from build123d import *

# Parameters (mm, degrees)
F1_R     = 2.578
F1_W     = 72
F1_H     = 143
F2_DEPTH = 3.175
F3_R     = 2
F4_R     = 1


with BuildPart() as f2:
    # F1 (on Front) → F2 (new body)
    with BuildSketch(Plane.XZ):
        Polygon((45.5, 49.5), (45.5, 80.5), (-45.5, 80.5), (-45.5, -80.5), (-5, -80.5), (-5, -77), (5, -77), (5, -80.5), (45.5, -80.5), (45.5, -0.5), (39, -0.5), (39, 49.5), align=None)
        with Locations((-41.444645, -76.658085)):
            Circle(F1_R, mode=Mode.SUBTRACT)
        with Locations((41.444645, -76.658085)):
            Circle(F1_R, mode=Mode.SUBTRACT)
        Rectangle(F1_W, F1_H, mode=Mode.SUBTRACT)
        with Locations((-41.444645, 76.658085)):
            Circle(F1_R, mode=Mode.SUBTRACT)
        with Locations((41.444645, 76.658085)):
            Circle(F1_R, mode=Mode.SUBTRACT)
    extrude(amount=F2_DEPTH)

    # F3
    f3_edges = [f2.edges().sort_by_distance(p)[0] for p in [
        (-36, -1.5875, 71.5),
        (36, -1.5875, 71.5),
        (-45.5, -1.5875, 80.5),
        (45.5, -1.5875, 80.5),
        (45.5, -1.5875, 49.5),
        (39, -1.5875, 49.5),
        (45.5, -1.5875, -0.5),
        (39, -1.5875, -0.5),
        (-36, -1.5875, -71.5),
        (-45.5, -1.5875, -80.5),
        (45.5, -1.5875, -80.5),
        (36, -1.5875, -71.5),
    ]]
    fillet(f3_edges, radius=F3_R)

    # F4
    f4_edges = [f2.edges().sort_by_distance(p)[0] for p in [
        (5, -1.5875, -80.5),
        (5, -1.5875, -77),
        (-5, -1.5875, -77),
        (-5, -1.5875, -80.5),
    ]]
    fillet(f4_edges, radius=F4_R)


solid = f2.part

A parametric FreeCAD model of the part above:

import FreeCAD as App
import Part
import Sketcher

V = App.Vector


def edges_at(feature, points):
    """Names of the edges that pass closest to the given points."""
    edges = feature.Shape.Edges
    near = lambda p: min(range(len(edges)), key=lambda i: edges[i].distToShape(Part.Vertex(*p))[0])
    return sorted({f"Edge{near(p) + 1}" for p in points})

doc = App.newDocument("Part")
body = doc.addObject("PartDesign::Body", "Body")

sketch1 = body.newObject("Sketcher::SketchObject", "Sketch")
sketch1.AttachmentSupport = (doc.getObject("XZ_Plane"), [""])
sketch1.MapMode = "FlatFace"
sketch1.addGeometry([
    Part.LineSegment(V(45.5, 49.5, 0), V(45.5, 80.5, 0)),
    Part.LineSegment(V(45.5, 80.5, 0), V(-45.5, 80.5, 0)),
    Part.LineSegment(V(-45.5, 80.5, 0), V(-45.5, -80.5, 0)),
    Part.LineSegment(V(-45.5, -80.5, 0), V(-5, -80.5, 0)),
    Part.LineSegment(V(-5, -80.5, 0), V(-5, -77, 0)),
    Part.LineSegment(V(-5, -77, 0), V(5, -77, 0)),
    Part.LineSegment(V(5, -77, 0), V(5, -80.5, 0)),
    Part.LineSegment(V(5, -80.5, 0), V(45.5, -80.5, 0)),
    Part.LineSegment(V(45.5, -80.5, 0), V(45.5, -0.5, 0)),
    Part.LineSegment(V(45.5, -0.5, 0), V(39, -0.5, 0)),
    Part.LineSegment(V(39, -0.5, 0), V(39, 49.5, 0)),
    Part.LineSegment(V(39, 49.5, 0), V(45.5, 49.5, 0)),
    Part.Circle(V(-41.4, -76.7, 0), V(0, 0, 1), 2.6),
    Part.Circle(V(41.4, -76.7, 0), V(0, 0, 1), 2.6),
    Part.LineSegment(V(36, -71.5, 0), V(-36, -71.5, 0)),
    Part.LineSegment(V(-36, -71.5, 0), V(-36, 71.5, 0)),
    Part.LineSegment(V(-36, 71.5, 0), V(36, 71.5, 0)),
    Part.LineSegment(V(36, 71.5, 0), V(36, -71.5, 0)),
    Part.Circle(V(-41.4, 76.7, 0), V(0, 0, 1), 2.6),
    Part.Circle(V(41.4, 76.7, 0), V(0, 0, 1), 2.6),
], False)
sketch1.addConstraint([
    Sketcher.Constraint("Coincident", 0, 2, 1, 1),
    Sketcher.Constraint("Coincident", 1, 2, 2, 1),
    Sketcher.Constraint("Coincident", 2, 2, 3, 1),
    Sketcher.Constraint("Coincident", 3, 2, 4, 1),
    Sketcher.Constraint("Coincident", 4, 2, 5, 1),
    Sketcher.Constraint("Coincident", 5, 2, 6, 1),
    Sketcher.Constraint("Coincident", 6, 2, 7, 1),
    Sketcher.Constraint("Coincident", 7, 2, 8, 1),
    Sketcher.Constraint("Coincident", 8, 2, 9, 1),
    Sketcher.Constraint("Coincident", 9, 2, 10, 1),
    Sketcher.Constraint("Coincident", 10, 2, 11, 1),
    Sketcher.Constraint("Coincident", 11, 2, 0, 1),
    Sketcher.Constraint("Coincident", 14, 2, 15, 1),
    Sketcher.Constraint("Coincident", 15, 2, 16, 1),
    Sketcher.Constraint("Coincident", 16, 2, 17, 1),
    Sketcher.Constraint("Coincident", 17, 2, 14, 1),
    Sketcher.Constraint("Vertical", 0),
    Sketcher.Constraint("Horizontal", 1),
    Sketcher.Constraint("Vertical", 2),
    Sketcher.Constraint("Horizontal", 3),
    Sketcher.Constraint("Vertical", 4),
    Sketcher.Constraint("Horizontal", 5),
    Sketcher.Constraint("Vertical", 6),
    Sketcher.Constraint("Horizontal", 7),
    Sketcher.Constraint("Vertical", 8),
    Sketcher.Constraint("Horizontal", 9),
    Sketcher.Constraint("Vertical", 10),
    Sketcher.Constraint("Horizontal", 11),
    Sketcher.Constraint("Horizontal", 14),
    Sketcher.Constraint("Vertical", 15),
    Sketcher.Constraint("Horizontal", 16),
    Sketcher.Constraint("Vertical", 17),
    Sketcher.Constraint("Equal", 12, 13),
    Sketcher.Constraint("Equal", 13, 18),
    Sketcher.Constraint("Equal", 18, 19),
    Sketcher.Constraint("Symmetric", 13, 3, 18, 3, -1, 1),
    Sketcher.Constraint("Symmetric", 12, 3, 19, 3, -1, 1),
    Sketcher.Constraint("Symmetric", 0, 2, 2, 2, -1, 1),
    Sketcher.Constraint("Symmetric", 1, 2, 7, 2, -1, 1),
    Sketcher.Constraint("Symmetric", 14, 2, 16, 2, -1, 1),
    Sketcher.Constraint("Symmetric", 12, 3, 13, 3, -2),
    Sketcher.Constraint("Equal", 3, 7),
    Sketcher.Constraint("DistanceX", 1, 2, 1, 1, 91.0),
    Sketcher.Constraint("DistanceX", 5, 1, 5, 2, 10.0),
    Sketcher.Constraint("DistanceX", 14, 2, 14, 1, 72.0),
    Sketcher.Constraint("DistanceY", 0, 1, 0, 2, 31.0),
    Sketcher.Constraint("DistanceY", 2, 2, 2, 1, 161.0),
    Sketcher.Constraint("DistanceY", 8, 1, 8, 2, 80.0),
    Sketcher.Constraint("DistanceY", 15, 1, 15, 2, 143.0),
    Sketcher.Constraint("Diameter", 12, 5.156),
    Sketcher.Constraint("DistanceX", 9, 2, 9, 1, 6.5),
    Sketcher.Constraint("DistanceY", 4, 1, 4, 2, 3.5),
    Sketcher.Constraint("DistanceX", 12, 3, 13, 3, 82.88929),
    Sketcher.Constraint("DistanceY", 12, 3, 18, 3, 153.31617),
])
pad1 = body.newObject("PartDesign::Pad", "Pad")
pad1.Profile = sketch1
pad1.Length = 3.175
doc.recompute()

fillet = body.newObject("PartDesign::Fillet", "Fillet")
fillet.Base = (pad1, edges_at(pad1, [
    (-36, -1.587, 71.5),
    (36, -1.587, 71.5),
    (-45.5, -1.587, 80.5),
    (45.5, -1.587, 80.5),
    (45.5, -1.587, 49.5),
    (39, -1.587, 49.5),
    (45.5, -1.587, -0.5),
    (39, -1.587, -0.5),
    (-36, -1.587, -71.5),
    (-45.5, -1.587, -80.5),
    (45.5, -1.587, -80.5),
    (36, -1.587, -71.5),
]))
fillet.Radius = 2
doc.recompute()

fillet2 = body.newObject("PartDesign::Fillet", "Fillet001")
fillet2.Base = (fillet, edges_at(fillet, [
    (5, -1.587, -80.5),
    (5, -1.587, -77),
    (-5, -1.587, -77),
    (-5, -1.587, -80.5),
]))
fillet2.Radius = 1

doc.recompute()
